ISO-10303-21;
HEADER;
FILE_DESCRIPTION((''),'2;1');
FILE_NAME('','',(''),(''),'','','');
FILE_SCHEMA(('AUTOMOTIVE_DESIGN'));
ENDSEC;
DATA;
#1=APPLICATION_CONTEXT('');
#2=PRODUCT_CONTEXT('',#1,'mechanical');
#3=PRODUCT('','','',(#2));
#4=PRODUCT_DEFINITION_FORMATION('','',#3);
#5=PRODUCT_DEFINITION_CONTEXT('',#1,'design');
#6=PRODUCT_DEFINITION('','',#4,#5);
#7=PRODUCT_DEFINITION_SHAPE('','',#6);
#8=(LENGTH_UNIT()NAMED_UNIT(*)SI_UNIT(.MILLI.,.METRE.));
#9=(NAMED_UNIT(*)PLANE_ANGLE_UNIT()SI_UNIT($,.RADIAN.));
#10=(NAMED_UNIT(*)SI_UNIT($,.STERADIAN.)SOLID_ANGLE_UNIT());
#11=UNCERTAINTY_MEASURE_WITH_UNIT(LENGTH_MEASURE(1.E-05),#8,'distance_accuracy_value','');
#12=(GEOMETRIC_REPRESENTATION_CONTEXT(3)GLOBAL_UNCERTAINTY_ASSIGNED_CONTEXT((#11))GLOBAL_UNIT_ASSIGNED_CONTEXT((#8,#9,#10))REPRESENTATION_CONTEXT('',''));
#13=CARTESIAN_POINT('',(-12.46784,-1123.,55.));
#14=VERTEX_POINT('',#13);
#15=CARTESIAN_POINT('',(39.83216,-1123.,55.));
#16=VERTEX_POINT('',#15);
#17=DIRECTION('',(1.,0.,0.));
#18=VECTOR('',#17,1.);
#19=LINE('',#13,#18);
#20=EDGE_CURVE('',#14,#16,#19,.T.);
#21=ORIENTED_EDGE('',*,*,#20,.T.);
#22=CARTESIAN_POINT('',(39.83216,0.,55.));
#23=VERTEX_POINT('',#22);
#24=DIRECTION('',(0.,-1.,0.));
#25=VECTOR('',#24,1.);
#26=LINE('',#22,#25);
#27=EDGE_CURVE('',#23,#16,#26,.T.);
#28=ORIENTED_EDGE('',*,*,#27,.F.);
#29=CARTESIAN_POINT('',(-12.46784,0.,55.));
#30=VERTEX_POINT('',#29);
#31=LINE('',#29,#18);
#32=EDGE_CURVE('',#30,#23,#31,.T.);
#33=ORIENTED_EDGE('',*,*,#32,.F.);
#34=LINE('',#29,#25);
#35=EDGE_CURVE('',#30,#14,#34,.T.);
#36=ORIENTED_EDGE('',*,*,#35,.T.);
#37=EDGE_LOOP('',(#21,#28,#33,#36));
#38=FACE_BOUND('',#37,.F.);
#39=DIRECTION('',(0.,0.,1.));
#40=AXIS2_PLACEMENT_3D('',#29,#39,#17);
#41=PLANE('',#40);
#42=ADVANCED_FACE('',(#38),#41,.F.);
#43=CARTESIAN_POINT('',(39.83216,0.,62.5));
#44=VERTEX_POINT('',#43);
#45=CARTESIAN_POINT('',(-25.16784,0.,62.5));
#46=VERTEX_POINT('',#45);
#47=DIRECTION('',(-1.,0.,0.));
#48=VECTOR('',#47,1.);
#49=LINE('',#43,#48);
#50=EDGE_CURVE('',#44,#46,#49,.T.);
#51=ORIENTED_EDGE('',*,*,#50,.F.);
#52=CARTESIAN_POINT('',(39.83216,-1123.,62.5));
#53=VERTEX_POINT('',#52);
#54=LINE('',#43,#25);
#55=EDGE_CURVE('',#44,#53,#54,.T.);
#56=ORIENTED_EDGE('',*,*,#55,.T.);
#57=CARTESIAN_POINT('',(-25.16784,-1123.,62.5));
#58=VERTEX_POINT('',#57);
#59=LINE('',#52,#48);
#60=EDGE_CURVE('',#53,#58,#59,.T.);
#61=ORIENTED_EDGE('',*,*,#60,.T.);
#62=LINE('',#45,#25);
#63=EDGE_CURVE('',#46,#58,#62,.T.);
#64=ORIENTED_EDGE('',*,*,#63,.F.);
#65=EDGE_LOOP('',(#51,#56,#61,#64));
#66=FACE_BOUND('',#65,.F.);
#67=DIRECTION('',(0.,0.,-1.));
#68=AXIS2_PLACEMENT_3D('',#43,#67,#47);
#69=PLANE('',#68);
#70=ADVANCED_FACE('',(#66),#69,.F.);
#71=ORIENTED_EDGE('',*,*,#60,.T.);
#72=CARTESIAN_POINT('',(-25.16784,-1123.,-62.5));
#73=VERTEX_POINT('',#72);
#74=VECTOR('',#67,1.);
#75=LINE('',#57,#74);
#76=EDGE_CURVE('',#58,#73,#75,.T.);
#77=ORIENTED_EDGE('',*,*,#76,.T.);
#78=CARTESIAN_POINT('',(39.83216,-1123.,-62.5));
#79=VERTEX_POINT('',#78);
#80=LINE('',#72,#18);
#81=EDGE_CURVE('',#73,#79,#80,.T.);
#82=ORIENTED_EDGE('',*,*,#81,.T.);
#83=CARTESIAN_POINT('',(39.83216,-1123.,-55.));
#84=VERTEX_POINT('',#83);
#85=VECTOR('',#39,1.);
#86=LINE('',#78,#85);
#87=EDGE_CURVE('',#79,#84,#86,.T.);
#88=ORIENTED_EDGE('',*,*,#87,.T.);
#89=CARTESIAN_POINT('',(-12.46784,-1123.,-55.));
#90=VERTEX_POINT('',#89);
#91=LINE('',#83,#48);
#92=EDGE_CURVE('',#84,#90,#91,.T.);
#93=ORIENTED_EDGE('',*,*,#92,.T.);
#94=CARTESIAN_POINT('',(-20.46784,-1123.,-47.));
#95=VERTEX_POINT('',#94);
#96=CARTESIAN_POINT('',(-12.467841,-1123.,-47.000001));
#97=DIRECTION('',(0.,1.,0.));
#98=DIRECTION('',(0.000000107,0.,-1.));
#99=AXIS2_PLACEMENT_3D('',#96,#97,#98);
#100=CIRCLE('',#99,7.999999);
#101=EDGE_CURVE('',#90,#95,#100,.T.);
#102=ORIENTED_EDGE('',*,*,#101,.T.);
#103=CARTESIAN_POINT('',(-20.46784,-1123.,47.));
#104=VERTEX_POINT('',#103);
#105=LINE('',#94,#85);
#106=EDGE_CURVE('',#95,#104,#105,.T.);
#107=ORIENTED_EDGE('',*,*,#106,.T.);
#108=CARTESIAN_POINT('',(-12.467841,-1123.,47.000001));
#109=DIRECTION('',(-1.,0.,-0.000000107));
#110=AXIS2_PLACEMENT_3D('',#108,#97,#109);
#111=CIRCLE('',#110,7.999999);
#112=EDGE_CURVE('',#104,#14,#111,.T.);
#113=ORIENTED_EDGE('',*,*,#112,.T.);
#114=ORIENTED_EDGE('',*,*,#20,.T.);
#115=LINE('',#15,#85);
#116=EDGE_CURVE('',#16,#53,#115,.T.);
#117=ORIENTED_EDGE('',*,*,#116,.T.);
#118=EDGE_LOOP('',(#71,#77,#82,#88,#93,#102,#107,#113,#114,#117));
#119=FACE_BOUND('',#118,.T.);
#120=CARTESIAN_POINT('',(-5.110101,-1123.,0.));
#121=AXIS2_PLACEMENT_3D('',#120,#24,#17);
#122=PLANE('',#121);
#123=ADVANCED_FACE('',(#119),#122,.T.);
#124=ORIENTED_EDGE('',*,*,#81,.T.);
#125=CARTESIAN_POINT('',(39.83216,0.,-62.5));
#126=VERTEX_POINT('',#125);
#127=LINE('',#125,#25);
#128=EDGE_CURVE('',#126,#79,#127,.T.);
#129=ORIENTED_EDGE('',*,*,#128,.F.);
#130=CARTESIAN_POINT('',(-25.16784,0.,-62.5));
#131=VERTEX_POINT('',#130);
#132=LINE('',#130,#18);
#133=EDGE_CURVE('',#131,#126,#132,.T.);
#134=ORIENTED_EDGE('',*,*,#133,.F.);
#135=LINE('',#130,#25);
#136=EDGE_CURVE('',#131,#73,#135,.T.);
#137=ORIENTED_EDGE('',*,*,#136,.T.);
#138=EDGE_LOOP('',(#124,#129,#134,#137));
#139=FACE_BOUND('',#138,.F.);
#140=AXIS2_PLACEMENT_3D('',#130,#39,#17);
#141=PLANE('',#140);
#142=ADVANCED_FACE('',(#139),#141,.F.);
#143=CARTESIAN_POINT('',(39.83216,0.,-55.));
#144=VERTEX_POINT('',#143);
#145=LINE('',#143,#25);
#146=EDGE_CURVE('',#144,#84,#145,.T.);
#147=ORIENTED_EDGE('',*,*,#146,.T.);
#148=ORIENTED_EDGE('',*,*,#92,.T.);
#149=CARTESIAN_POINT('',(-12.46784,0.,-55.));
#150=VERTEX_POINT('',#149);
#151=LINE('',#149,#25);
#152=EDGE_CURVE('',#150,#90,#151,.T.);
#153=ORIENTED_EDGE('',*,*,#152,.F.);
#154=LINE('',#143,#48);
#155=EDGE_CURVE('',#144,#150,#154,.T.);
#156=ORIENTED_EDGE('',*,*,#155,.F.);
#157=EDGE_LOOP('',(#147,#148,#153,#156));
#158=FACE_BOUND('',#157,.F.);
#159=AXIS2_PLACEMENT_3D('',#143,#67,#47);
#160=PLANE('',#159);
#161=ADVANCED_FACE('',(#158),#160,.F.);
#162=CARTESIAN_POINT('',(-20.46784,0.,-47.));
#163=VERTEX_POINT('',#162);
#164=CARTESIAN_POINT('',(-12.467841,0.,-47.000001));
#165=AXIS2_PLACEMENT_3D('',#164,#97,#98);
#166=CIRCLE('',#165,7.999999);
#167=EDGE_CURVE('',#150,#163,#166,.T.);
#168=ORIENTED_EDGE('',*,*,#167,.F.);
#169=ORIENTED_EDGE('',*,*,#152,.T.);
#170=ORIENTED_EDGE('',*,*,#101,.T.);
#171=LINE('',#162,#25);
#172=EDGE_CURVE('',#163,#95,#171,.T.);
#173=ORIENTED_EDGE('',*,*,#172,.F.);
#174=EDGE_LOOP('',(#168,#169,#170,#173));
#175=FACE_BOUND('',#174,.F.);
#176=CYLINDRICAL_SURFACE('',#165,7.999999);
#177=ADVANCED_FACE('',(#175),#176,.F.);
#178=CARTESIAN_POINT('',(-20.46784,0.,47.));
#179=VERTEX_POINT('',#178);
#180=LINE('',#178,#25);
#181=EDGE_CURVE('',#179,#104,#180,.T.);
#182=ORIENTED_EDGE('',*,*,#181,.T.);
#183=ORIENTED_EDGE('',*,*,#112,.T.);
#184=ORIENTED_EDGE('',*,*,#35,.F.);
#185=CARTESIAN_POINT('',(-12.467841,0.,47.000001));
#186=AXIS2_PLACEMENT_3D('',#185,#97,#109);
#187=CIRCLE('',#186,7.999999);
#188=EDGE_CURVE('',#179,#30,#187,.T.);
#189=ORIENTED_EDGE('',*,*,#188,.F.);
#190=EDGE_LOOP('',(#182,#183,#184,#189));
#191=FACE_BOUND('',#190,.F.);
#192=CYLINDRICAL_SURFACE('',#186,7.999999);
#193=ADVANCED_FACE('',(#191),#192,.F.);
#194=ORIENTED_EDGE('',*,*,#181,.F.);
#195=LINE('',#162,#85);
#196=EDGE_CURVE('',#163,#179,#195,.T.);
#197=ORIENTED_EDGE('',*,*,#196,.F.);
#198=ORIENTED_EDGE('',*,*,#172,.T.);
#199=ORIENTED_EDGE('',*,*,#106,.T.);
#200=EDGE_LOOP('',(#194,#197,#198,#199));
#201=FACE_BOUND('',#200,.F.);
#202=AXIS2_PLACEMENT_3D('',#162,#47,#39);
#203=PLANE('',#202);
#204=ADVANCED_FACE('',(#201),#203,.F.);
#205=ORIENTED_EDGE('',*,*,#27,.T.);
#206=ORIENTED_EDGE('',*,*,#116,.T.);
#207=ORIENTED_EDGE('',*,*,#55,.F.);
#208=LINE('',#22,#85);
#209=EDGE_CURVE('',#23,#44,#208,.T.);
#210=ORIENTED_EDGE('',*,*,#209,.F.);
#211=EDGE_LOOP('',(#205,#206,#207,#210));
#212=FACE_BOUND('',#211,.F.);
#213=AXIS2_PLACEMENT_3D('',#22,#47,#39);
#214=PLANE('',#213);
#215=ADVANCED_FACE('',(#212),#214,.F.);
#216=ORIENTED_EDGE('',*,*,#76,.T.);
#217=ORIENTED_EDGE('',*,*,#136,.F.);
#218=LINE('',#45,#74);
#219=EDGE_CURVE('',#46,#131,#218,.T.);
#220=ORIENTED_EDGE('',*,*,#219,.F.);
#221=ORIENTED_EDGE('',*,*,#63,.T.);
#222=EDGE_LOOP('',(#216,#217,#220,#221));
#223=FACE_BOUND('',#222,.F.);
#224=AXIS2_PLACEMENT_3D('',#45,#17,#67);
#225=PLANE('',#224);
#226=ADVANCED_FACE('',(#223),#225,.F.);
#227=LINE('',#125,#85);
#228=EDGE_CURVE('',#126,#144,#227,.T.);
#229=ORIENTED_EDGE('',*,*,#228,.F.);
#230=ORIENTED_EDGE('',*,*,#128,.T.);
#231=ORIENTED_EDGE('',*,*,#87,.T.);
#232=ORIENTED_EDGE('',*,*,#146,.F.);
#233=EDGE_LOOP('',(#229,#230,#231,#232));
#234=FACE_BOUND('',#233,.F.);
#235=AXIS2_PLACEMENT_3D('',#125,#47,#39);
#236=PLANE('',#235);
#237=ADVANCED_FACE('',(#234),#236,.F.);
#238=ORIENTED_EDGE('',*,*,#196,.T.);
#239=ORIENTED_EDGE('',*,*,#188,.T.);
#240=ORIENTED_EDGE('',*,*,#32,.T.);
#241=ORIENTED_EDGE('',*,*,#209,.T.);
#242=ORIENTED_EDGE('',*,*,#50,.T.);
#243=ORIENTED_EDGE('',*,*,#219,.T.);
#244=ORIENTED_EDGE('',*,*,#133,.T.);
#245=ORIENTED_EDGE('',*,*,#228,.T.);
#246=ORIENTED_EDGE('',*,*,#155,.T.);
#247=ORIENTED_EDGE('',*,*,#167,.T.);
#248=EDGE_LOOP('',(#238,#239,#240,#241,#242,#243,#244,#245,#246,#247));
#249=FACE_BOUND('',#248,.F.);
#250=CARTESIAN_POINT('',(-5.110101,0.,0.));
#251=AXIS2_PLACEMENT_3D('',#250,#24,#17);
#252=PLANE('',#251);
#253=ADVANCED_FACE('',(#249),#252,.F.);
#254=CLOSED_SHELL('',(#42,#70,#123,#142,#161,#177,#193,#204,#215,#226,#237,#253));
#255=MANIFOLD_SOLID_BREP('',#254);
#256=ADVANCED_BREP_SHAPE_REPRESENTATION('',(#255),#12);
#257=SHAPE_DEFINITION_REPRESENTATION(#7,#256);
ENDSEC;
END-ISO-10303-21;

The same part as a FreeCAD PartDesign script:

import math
import FreeCAD as App
import Part
import Sketcher

doc = App.newDocument("Part")
body = doc.addObject("PartDesign::Body", "Body")

sketch1 = body.newObject("Sketcher::SketchObject", "Sketch")
sketch1.AttachmentSupport = (doc.getObject("XZ_Plane"), [""])
sketch1.MapMode = "FlatFace"
sketch1.addGeometry(Part.LineSegment(App.Vector(-25, 62, 0), App.Vector(-25, -62, 0)), False)
sketch1.addGeometry(Part.LineSegment(App.Vector(-25, -62, 0), App.Vector(40, -62, 0)), False)
sketch1.addGeometry(Part.LineSegment(App.Vector(40, -62, 0), App.Vector(40, -55, 0)), False)
sketch1.addGeometry(Part.LineSegment(App.Vector(40, -55, 0), App.Vector(-12, -55, 0)), False)
sketch1.addGeometry(Part.ArcOfCircle(Part.Circle(App.Vector(-12, -47, 0), App.Vector(0, 0, 1), 8), math.radians(180), math.radians(270)), False)
sketch1.addGeometry(Part.LineSegment(App.Vector(-20, -47, 0), App.Vector(-20, 47, 0)), False)
sketch1.addGeometry(Part.ArcOfCircle(Part.Circle(App.Vector(-12, 47, 0), App.Vector(0, 0, 1), 8), math.radians(90), math.radians(180)), False)
sketch1.addGeometry(Part.LineSegment(App.Vector(-12, 55, 0), App.Vector(40, 55, 0)), False)
sketch1.addGeometry(Part.LineSegment(App.Vector(40, 55, 0), App.Vector(40, 62, 0)), False)
sketch1.addGeometry(Part.LineSegment(App.Vector(40, 62, 0), App.Vector(-25, 62, 0)), False)
sketch1.addConstraint(Sketcher.Constraint("Coincident", 0, 2, 1, 1))
sketch1.addConstraint(Sketcher.Constraint("Coincident", 1, 2, 2, 1))
sketch1.addConstraint(Sketcher.Constraint("Coincident", 2, 2, 3, 1))
sketch1.addConstraint(Sketcher.Constraint("Tangent", 3, 2, 4, 2))
sketch1.addConstraint(Sketcher.Constraint("Tangent", 4, 1, 5, 1))
sketch1.addConstraint(Sketcher.Constraint("Tangent", 5, 2, 6, 2))
sketch1.addConstraint(Sketcher.Constraint("Tangent", 6, 1, 7, 1))
sketch1.addConstraint(Sketcher.Constraint("Coincident", 7, 2, 8, 1))
sketch1.addConstraint(Sketcher.Constraint("Coincident", 8, 2, 9, 1))
sketch1.addConstraint(Sketcher.Constraint("Coincident", 9, 2, 0, 1))
sketch1.addConstraint(Sketcher.Constraint("Vertical", 0))
sketch1.addConstraint(Sketcher.Constraint("Horizontal", 1))
sketch1.addConstraint(Sketcher.Constraint("Vertical", 2))
sketch1.addConstraint(Sketcher.Constraint("Horizontal", 3))
sketch1.addConstraint(Sketcher.Constraint("Vertical", 5))
sketch1.addConstraint(Sketcher.Constraint("Horizontal", 7))
sketch1.addConstraint(Sketcher.Constraint("Vertical", 8))
sketch1.addConstraint(Sketcher.Constraint("Horizontal", 9))
sketch1.addConstraint(Sketcher.Constraint("Equal", 4, 6))
sketch1.addConstraint(Sketcher.Constraint("Symmetric", 2, 2, 7, 2, -1))
sketch1.addConstraint(Sketcher.Constraint("Equal", 2, 8))
sketch1.addConstraint(Sketcher.Constraint("Radius", 4, 7.999999))
sketch1.addConstraint(Sketcher.Constraint("DistanceX", 1, 1, 1, 2, 65.0))
sketch1.addConstraint(Sketcher.Constraint("DistanceY", 0, 2, 0, 1, 125.0))
sketch1.addConstraint(Sketcher.Constraint("DistanceY", 5, 1, 5, 2, 94.0))
sketch1.addConstraint(Sketcher.Constraint("DistanceX", 3, 2, 3, 1, 52.3))
sketch1.addConstraint(Sketcher.Constraint("DistanceX", 4, 3, -1, 1, 12.467841))
pad1 = body.newObject("PartDesign::Pad", "Pad")
pad1.Profile = sketch1
pad1.Length = 1123

doc.recompute()
